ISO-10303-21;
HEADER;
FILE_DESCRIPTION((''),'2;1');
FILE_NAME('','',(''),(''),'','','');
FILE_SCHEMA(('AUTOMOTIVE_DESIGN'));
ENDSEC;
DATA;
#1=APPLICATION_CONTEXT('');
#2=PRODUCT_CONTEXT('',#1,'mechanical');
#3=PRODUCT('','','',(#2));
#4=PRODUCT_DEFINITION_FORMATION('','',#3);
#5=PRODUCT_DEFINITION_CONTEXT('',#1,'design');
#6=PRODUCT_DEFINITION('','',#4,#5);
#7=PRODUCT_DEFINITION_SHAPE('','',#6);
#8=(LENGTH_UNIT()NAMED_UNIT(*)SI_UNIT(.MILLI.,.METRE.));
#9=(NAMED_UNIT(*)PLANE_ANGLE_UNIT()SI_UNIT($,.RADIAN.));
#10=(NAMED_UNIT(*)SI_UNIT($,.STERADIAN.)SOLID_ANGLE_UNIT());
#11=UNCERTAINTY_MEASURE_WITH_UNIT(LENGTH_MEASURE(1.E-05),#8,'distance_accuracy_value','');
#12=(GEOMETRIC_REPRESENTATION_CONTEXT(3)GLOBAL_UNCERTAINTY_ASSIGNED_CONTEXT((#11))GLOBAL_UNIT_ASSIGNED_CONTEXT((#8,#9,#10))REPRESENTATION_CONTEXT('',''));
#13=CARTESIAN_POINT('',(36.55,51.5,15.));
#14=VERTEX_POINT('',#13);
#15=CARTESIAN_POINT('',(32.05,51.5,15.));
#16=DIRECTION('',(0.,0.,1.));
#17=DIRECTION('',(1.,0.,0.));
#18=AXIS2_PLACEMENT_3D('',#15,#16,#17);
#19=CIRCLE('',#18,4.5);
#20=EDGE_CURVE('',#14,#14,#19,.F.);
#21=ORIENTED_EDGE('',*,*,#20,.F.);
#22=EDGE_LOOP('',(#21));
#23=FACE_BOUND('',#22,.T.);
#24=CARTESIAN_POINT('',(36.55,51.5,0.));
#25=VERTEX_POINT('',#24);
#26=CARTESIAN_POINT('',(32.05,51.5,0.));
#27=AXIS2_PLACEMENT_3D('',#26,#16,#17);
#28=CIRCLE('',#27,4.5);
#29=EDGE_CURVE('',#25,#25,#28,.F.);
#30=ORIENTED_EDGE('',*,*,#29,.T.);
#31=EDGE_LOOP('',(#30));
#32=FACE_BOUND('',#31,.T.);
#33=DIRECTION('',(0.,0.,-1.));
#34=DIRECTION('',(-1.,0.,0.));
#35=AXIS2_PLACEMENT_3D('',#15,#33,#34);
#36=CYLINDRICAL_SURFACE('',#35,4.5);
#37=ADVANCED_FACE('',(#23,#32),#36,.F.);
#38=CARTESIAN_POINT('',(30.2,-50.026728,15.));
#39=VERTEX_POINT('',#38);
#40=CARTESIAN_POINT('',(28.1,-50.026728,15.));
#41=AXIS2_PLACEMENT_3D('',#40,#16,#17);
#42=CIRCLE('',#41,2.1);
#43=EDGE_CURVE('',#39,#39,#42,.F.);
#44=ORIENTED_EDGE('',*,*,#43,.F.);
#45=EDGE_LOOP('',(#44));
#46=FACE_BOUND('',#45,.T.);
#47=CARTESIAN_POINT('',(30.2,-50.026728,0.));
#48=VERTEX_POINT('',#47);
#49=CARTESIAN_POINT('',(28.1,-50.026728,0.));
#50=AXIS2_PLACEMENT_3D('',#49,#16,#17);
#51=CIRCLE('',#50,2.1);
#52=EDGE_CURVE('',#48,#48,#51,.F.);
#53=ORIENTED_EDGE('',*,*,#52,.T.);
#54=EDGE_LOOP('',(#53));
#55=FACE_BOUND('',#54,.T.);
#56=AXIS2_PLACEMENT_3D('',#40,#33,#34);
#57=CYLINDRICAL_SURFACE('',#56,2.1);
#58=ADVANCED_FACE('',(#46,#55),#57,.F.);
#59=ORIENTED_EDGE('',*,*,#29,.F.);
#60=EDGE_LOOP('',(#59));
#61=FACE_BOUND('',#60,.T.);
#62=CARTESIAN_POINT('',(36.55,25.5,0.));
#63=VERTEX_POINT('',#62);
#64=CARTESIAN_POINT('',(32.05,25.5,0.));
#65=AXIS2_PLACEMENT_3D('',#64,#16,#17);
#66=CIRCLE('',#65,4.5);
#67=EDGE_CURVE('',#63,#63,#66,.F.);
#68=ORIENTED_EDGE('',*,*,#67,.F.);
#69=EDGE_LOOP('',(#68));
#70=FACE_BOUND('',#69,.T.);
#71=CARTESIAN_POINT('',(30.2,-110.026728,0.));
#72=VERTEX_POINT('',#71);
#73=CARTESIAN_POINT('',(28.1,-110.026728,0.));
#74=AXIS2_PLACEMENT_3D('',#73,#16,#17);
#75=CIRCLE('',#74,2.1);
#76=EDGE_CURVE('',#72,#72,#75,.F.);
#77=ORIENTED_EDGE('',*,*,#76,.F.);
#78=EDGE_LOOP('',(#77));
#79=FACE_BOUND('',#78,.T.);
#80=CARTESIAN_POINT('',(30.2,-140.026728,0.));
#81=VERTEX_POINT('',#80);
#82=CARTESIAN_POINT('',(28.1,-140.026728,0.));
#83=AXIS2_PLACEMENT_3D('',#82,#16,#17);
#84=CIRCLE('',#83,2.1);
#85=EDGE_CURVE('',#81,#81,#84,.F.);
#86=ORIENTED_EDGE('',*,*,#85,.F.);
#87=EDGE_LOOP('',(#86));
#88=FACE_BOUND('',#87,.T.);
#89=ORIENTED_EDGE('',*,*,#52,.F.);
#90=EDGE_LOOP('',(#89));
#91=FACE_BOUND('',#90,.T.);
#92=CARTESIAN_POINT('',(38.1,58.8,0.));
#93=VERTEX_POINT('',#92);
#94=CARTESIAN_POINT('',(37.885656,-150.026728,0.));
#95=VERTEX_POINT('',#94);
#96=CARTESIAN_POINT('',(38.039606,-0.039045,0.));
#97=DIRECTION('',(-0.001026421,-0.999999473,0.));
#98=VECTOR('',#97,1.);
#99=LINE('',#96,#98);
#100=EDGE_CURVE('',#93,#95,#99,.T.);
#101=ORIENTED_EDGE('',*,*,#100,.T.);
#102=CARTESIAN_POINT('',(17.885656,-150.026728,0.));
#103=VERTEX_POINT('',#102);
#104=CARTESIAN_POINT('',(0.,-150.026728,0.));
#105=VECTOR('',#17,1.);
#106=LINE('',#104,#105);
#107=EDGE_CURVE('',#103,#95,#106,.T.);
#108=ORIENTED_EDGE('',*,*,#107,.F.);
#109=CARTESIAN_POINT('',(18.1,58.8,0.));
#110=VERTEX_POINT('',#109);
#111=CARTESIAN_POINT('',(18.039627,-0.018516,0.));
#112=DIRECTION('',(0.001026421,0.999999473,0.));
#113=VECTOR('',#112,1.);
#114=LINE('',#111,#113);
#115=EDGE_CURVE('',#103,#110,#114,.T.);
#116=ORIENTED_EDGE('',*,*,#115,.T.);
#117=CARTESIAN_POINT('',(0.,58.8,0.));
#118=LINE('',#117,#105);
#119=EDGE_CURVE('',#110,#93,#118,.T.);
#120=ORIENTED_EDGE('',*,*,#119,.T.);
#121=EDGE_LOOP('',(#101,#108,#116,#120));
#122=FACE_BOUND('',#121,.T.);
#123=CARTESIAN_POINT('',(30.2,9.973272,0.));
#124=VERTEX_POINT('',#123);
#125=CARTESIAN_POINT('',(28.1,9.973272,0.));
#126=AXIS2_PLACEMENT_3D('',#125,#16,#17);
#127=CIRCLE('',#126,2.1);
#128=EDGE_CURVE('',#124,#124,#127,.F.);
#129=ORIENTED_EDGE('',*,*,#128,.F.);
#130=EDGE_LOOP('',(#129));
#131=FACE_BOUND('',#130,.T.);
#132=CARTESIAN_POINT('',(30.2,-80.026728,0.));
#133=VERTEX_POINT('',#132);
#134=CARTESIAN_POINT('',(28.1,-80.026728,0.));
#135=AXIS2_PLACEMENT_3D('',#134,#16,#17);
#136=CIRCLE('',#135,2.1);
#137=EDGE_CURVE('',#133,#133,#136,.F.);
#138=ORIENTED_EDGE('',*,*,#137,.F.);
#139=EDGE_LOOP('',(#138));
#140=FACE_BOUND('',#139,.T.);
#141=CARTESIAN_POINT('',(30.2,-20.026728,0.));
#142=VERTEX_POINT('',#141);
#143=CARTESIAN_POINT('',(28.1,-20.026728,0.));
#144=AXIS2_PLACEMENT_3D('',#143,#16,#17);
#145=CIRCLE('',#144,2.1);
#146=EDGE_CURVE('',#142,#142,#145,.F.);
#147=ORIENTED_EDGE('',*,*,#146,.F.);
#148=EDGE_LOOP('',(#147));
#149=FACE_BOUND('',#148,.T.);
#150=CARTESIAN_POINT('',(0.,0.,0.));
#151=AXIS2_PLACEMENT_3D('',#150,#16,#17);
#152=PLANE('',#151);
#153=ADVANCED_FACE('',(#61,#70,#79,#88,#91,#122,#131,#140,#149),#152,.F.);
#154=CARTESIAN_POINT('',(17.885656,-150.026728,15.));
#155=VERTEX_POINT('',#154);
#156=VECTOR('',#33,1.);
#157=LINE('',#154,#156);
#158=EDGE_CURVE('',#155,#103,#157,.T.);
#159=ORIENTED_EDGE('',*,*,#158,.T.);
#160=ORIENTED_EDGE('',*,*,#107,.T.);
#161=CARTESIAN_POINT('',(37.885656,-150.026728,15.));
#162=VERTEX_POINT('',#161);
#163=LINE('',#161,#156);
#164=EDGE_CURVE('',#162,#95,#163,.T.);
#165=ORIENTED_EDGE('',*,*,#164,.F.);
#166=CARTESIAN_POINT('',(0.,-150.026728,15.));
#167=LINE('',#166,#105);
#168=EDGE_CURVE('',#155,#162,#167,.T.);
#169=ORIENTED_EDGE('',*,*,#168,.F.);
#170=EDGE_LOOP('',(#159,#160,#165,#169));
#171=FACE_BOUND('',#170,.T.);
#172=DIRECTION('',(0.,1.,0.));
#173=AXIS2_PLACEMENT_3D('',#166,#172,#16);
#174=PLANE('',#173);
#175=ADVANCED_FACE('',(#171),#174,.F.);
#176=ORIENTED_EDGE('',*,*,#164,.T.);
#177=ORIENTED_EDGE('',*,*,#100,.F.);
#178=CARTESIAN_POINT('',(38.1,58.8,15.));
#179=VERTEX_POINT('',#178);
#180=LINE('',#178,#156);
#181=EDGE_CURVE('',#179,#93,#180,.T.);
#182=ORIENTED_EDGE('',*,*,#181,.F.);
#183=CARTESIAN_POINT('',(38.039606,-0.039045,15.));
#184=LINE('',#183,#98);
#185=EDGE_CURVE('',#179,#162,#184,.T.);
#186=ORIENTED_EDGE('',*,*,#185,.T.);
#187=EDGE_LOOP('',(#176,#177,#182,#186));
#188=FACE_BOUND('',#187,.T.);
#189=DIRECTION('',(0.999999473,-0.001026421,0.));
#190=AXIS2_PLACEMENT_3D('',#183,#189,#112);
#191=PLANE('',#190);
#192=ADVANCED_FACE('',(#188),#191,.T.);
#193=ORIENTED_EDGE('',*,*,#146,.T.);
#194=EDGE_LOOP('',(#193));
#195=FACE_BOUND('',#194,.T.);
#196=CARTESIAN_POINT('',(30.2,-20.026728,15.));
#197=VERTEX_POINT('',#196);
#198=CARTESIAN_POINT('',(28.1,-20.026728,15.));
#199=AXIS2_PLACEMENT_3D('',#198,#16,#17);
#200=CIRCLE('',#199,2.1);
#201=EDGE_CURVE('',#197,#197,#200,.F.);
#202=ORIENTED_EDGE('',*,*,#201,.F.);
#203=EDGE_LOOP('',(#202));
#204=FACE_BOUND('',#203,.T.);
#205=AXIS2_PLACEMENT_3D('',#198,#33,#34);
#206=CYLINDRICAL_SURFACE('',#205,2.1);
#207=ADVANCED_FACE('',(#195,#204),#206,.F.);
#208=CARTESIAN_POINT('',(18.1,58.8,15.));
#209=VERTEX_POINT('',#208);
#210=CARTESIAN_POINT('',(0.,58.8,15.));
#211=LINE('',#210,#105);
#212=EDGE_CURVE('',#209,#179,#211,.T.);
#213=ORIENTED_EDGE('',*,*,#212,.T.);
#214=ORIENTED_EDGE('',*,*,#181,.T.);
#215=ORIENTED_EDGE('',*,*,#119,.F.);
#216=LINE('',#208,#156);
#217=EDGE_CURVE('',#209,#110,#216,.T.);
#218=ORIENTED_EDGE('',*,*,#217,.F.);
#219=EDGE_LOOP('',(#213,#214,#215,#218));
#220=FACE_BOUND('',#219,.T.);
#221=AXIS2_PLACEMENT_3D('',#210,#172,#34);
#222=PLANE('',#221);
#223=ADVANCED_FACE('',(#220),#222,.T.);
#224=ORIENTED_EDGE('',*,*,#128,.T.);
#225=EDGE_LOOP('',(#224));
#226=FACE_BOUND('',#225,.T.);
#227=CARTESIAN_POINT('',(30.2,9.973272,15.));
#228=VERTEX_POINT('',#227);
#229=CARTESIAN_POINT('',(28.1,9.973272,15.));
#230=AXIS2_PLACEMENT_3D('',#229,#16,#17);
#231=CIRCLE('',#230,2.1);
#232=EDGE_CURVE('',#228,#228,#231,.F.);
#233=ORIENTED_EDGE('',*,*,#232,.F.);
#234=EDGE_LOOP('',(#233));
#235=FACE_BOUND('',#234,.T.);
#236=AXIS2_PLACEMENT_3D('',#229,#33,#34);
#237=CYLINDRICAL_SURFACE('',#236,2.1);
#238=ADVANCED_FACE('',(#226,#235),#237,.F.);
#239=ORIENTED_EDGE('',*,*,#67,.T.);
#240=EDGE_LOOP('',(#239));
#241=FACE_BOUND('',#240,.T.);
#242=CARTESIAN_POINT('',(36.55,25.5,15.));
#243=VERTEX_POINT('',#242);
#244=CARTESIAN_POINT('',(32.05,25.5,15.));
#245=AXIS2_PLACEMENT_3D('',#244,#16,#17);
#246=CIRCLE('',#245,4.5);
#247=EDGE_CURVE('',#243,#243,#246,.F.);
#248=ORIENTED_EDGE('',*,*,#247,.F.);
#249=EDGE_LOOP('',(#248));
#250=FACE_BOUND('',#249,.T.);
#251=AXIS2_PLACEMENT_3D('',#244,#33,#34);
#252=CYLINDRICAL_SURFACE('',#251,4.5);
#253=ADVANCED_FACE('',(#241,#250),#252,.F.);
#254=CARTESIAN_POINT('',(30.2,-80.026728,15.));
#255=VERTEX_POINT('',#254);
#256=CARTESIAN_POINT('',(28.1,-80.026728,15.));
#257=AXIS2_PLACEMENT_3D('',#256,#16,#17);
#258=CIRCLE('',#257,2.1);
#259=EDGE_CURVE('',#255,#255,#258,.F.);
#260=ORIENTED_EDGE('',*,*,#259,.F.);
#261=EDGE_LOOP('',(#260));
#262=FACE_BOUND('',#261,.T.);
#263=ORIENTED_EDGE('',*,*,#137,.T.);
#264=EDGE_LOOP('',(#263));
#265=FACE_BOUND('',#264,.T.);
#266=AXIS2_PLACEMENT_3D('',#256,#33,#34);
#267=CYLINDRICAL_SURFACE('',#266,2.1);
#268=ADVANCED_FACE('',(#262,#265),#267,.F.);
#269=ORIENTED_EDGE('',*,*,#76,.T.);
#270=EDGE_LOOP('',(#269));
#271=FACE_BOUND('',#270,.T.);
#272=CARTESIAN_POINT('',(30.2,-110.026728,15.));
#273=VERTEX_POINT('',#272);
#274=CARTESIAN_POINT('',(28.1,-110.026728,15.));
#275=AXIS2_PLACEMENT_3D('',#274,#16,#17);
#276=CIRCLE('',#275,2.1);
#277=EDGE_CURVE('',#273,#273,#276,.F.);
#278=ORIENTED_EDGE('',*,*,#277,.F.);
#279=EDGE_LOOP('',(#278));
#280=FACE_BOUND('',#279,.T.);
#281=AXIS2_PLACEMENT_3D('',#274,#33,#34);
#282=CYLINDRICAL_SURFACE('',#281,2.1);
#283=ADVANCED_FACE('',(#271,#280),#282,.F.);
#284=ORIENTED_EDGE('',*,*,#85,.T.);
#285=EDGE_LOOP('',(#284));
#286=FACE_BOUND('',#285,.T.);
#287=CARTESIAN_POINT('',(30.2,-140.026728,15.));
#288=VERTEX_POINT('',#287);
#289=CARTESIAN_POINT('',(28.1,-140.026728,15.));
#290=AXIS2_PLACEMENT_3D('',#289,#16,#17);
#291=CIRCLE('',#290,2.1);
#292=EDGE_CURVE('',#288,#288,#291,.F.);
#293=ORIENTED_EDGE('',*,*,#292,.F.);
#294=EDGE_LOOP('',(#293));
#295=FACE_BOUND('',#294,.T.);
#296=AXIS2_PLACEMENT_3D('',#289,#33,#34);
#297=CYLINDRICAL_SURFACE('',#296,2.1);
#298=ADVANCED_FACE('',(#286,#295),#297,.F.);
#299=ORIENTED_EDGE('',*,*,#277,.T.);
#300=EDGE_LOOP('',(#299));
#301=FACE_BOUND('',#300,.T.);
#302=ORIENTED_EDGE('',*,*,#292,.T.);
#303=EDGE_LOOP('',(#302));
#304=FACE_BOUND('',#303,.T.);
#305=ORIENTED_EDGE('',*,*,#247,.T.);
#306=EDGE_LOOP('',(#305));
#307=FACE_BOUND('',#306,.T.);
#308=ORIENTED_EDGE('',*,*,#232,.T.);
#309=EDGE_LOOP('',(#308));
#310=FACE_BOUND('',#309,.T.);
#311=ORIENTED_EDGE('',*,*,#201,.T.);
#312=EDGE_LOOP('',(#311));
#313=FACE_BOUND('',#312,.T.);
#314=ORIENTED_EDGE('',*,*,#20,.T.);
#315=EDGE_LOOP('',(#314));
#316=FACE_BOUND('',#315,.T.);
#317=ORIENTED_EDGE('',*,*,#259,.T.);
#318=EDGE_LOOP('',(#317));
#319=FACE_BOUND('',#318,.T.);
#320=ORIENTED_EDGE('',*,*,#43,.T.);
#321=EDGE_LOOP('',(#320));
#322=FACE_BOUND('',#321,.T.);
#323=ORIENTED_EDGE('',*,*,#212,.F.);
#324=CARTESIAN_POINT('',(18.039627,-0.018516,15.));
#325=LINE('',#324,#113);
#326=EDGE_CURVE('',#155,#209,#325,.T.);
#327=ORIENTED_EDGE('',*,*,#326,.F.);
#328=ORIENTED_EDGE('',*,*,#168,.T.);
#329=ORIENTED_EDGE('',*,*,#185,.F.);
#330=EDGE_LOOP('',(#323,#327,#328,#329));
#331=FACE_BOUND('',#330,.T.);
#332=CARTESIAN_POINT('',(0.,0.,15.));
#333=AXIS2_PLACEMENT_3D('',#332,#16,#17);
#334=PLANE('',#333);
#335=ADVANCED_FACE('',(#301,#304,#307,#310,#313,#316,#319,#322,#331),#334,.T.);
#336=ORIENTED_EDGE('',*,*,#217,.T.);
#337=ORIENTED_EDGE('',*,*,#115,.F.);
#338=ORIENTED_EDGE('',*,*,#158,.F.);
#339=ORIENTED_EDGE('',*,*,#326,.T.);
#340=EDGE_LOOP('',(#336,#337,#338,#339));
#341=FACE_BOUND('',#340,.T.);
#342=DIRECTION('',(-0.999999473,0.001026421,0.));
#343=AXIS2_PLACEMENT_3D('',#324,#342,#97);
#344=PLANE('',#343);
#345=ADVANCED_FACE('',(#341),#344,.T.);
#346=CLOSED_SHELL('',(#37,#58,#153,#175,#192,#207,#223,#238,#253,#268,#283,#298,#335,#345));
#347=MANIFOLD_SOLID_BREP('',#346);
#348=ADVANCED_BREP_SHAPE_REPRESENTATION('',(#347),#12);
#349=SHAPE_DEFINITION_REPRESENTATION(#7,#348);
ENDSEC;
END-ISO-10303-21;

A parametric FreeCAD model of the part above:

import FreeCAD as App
import Part
import Sketcher
from FreeCAD import Vector
Q = App.Units.Quantity

doc = App.newDocument("Part")
body = doc.addObject("PartDesign::Body", "Body")

# Sketch on XY plane
sketch1 = body.newObject("Sketcher::SketchObject", "Sketch")
sketch1.AttachmentSupport = (doc.getObject("XY_Plane"), [""])
sketch1.MapMode = "FlatFace"
sketch1.addGeometry(Part.LineSegment(Vector(38.1, 58.8, 0), Vector(18.1, 58.8, 0)), False)
sketch1.addGeometry(Part.LineSegment(Vector(18.1, 58.8, 0), Vector(17.9, -150, 0)), False)
sketch1.addGeometry(Part.LineSegment(Vector(17.9, -150, 0), Vector(37.9, -150, 0)), False)
sketch1.addGeometry(Part.LineSegment(Vector(37.9, -150, 0), Vector(38.1, 58.8, 0)), False)
sketch1.addGeometry(Part.Circle(Vector(28.1, -140, 0), Vector(0, 0, 1), 2.1), False)
sketch1.addGeometry(Part.Circle(Vector(28.1, -110, 0), Vector(0, 0, 1), 2.1), False)
sketch1.addGeometry(Part.Circle(Vector(28.1, -80, 0), Vector(0, 0, 1), 2.1), False)
sketch1.addGeometry(Part.Circle(Vector(28.1, -50, 0), Vector(0, 0, 1), 2.1), False)
sketch1.addGeometry(Part.Circle(Vector(28.1, -20, 0), Vector(0, 0, 1), 2.1), False)
sketch1.addGeometry(Part.Circle(Vector(28.1, 10, 0), Vector(0, 0, 1), 2.1), False)
sketch1.addGeometry(Part.Circle(Vector(32, 25.5, 0), Vector(0, 0, 1), 4.5), False)
sketch1.addGeometry(Part.Circle(Vector(32, 51.5, 0), Vector(0, 0, 1), 4.5), False)
sketch1.addConstraint(Sketcher.Constraint("Coincident", 0, 2, 1, 1))
sketch1.addConstraint(Sketcher.Constraint("Coincident", 1, 2, 2, 1))
sketch1.addConstraint(Sketcher.Constraint("Coincident", 2, 2, 3, 1))
sketch1.addConstraint(Sketcher.Constraint("Coincident", 3, 2, 0, 1))
sketch1.addConstraint(Sketcher.Constraint("Horizontal", 0))
sketch1.addConstraint(Sketcher.Constraint("Horizontal", 2))
sketch1.addConstraint(Sketcher.Constraint("Equal", 4, 5))
sketch1.addConstraint(Sketcher.Constraint("Equal", 5, 6))
sketch1.addConstraint(Sketcher.Constraint("Equal", 6, 7))
sketch1.addConstraint(Sketcher.Constraint("Equal", 7, 8))
sketch1.addConstraint(Sketcher.Constraint("Equal", 8, 9))
sketch1.addConstraint(Sketcher.Constraint("Equal", 10, 11))
sketch1.addConstraint(Sketcher.Constraint("Parallel", 1, 3))
sketch1.addConstraint(Sketcher.Constraint("Vertical", 4, 3, 5, 3))
sketch1.addConstraint(Sketcher.Constraint("Vertical", 5, 3, 6, 3))
sketch1.addConstraint(Sketcher.Constraint("Vertical", 6, 3, 7, 3))
sketch1.addConstraint(Sketcher.Constraint("Vertical", 7, 3, 8, 3))
sketch1.addConstraint(Sketcher.Constraint("Vertical", 8, 3, 9, 3))
sketch1.addConstraint(Sketcher.Constraint("Vertical", 10, 3, 11, 3))
sketch1.addConstraint(Sketcher.Constraint("Diameter", 10, Q("9 mm")))
sketch1.addConstraint(Sketcher.Constraint("Diameter", 4, Q("4.2 mm")))
sketch1.addConstraint(Sketcher.Constraint("DistanceX", 0, 2, 0, 1, Q("20 mm")))
sketch1.addConstraint(Sketcher.Constraint("DistanceY", 4, 3, 5, 3, Q("30 mm")))
sketch1.addConstraint(Sketcher.Constraint("DistanceY", 5, 3, 6, 3, Q("30 mm")))
sketch1.addConstraint(Sketcher.Constraint("DistanceY", 6, 3, 7, 3, Q("30 mm")))
sketch1.addConstraint(Sketcher.Constraint("DistanceY", 7, 3, 8, 3, Q("30 mm")))
sketch1.addConstraint(Sketcher.Constraint("DistanceY", 8, 3, 9, 3, Q("30 mm")))
sketch1.addConstraint(Sketcher.Constraint("DistanceY", 10, 3, 11, 3, Q("26 mm")))
sketch1.addConstraint(Sketcher.Constraint("DistanceX", 0, 2, 9, 3, Q("10 mm")))
sketch1.addConstraint(Sketcher.Constraint("DistanceY", 1, 2, 4, 3, Q("10 mm")))
sketch1.addConstraint(Sketcher.Constraint("DistanceX", -1, 1, 4, 3, Q("28.1 mm")))
sketch1.addConstraint(Sketcher.Constraint("DistanceY", -1, 1, 10, 3, Q("25.5 mm")))
sketch1.addConstraint(Sketcher.Constraint("DistanceY", -1, 1, 0, 2, Q("58.8 mm")))
sketch1.addConstraint(Sketcher.Constraint("DistanceX", -1, 1, 10, 3, Q("32.05 mm")))
sketch1.addConstraint(Sketcher.Constraint("Distance", 1, Q("208.826838 mm")))
sketch1.addConstraint(Sketcher.Constraint("DistanceX", -1, 1, 1, 2, Q("17.885656 mm")))
pad1 = body.newObject("PartDesign::Pad", "Pad")
pad1.Profile = sketch1
pad1.Length = 15

doc.recompute()
